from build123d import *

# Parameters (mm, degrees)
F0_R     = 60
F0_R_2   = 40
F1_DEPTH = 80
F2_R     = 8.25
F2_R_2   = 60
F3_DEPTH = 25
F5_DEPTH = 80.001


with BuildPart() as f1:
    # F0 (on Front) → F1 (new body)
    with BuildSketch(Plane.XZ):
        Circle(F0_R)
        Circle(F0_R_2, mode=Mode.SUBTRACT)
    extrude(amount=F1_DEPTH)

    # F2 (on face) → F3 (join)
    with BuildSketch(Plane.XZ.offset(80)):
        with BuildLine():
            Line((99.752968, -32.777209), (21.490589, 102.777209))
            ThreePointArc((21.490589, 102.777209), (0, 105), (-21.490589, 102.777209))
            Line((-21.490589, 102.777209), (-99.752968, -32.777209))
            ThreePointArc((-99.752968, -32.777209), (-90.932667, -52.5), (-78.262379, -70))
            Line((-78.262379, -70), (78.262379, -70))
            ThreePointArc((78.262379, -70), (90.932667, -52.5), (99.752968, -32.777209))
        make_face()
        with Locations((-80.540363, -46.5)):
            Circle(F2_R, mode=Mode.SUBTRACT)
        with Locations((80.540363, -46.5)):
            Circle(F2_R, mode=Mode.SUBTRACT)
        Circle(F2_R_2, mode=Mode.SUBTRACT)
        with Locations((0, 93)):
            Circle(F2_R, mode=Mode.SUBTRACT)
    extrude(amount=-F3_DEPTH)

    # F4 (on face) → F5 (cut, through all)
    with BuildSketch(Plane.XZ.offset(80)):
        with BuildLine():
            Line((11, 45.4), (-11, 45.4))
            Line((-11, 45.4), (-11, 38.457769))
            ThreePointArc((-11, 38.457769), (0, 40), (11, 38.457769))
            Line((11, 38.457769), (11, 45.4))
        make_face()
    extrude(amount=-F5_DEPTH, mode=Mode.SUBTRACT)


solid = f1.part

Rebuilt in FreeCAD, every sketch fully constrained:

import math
import FreeCAD as App
import Part
import Sketcher
Q = App.Units.Quantity

doc = App.newDocument("Part")
body = doc.addObject("PartDesign::Body", "Body")

# Sketch on XZ plane
sketch1 = doc.addObject("Sketcher::SketchObject", "Sketch")
body.addObject(sketch1)
sketch1.AttachmentSupport = (doc.XZ_Plane, [""])
sketch1.MapMode = "FlatFace"
sketch1.addGeometry([
    Part.Circle(App.Vector(0, 0, 0), App.Vector(0, 0, 1), 60),
    Part.Circle(App.Vector(0, 0, 0), App.Vector(0, 0, 1), 40),
], False)
sketch1.addConstraint([
    Sketcher.Constraint("Coincident", 0, 3, -1, 1),
    Sketcher.Constraint("Coincident", 1, 3, -1, 1),
    Sketcher.Constraint("Diameter", 0, Q("120 mm")),
    Sketcher.Constraint("Diameter", 1, Q("80 mm")),
])
pad1 = doc.addObject("PartDesign::Pad", "Pad")
body.addObject(pad1)
pad1.Profile = sketch1
pad1.Length = 80

# Sketch on XZ plane
sketch2 = doc.addObject("Sketcher::SketchObject", "Sketch001")
body.addObject(sketch2)
sketch2.AttachmentSupport = (doc.XZ_Plane, [""])
sketch2.MapMode = "FlatFace"
sketch2.AttachmentOffset = App.Placement(App.Vector(0, 0, 80), App.Rotation())
sketch2.addGeometry([
    Part.LineSegment(App.Vector(99.752968, -32.777209, 0), App.Vector(21.490589, 102.777209, 0)),  # 0
    Part.ArcOfCircle(Part.Circle(App.Vector(0, -0.000024, 0), App.Vector(0, 0, 1), 105.000024), math.radians(78.189688), math.radians(101.810312)),  # 1
    Part.LineSegment(App.Vector(-21.490589, 102.777209, 0), App.Vector(-99.752968, -32.777209, 0)),  # 2
    Part.ArcOfCircle(Part.Circle(App.Vector(0.000016, 0.00001, 0), App.Vector(0, 0, 1), 105.000018), math.radians(-161.810312), math.radians(-138.189687)),  # 3
    Part.LineSegment(App.Vector(-78.262379, -70, 0), App.Vector(78.262379, -70, 0)),  # 4
    Part.ArcOfCircle(Part.Circle(App.Vector(-0.000016, 0.00001, 0), App.Vector(0, 0, 1), 105.000018), math.radians(-41.810313), math.radians(-18.189688)),  # 5
    Part.Circle(App.Vector(-80.540363, -46.5, 0), App.Vector(0, 0, 1), 8.25),  # 6
    Part.Circle(App.Vector(0, 0, 0), App.Vector(0, 0, 1), 60),  # 7
    Part.Circle(App.Vector(80.540363, -46.5, 0), App.Vector(0, 0, 1), 8.25),  # 8
    Part.Circle(App.Vector(0, 93, 0), App.Vector(0, 0, 1), 8.25),  # 9
], False)
sketch2.addConstraint([
    Sketcher.Constraint("Coincident", 0, 2, 1, 1),
    Sketcher.Constraint("Coincident", 1, 2, 2, 1),
    Sketcher.Constraint("Coincident", 2, 2, 3, 1),
    Sketcher.Constraint("Coincident", 3, 2, 4, 1),
    Sketcher.Constraint("Coincident", 4, 2, 5, 1),
    Sketcher.Constraint("Coincident", 5, 2, 0, 1),
    Sketcher.Constraint("Horizontal", 4),
    Sketcher.Constraint("Coincident", 7, 3, -1, 1),
    Sketcher.Constraint("Equal", 3, 5),
    Sketcher.Constraint("Equal", 6, 8),
    Sketcher.Constraint("Equal", 8, 9),
    Sketcher.Constraint("Symmetric", 3, 3, 5, 3, -2),
    Sketcher.Constraint("Symmetric", 6, 3, 8, 3, -2),
    Sketcher.Constraint("Symmetric", 0, 2, 1, 2, -2),
    Sketcher.Constraint("PointOnObject", 9, 3, -2),
    Sketcher.Constraint("Horizontal", 2, 2, 5, 2),
    Sketcher.Constraint("Diameter", 7, Q("120 mm")),
    Sketcher.Constraint("Diameter", 6, Q("16.5 mm")),
    Sketcher.Constraint("Angle", 0, Q("120 deg")),
    Sketcher.Constraint("DistanceY", -1, 1, 9, 3, Q("93 mm")),
    Sketcher.Constraint("DistanceY", 3, 2, -1, 1, Q("70 mm")),
    Sketcher.Constraint("DistanceY", 6, 3, -1, 1, Q("46.5 mm")),
    Sketcher.Constraint("Radius", 3, Q("105.000018 mm")),
    Sketcher.Constraint("Radius", 1, Q("105.000024 mm")),
    Sketcher.Constraint("DistanceX", 4, 1, 4, 2, Q("156.524758 mm")),
    Sketcher.Constraint("DistanceY", 3, 3, 0, 2, Q("102.777199 mm")),
    Sketcher.Constraint("Distance", 0, Q("156.524759 mm")),
    Sketcher.Constraint("DistanceX", -1, 1, 0, 2, Q("21.490589 mm")),
    Sketcher.Constraint("DistanceX", 6, 3, 3, 3, Q("80.540379 mm")),
])
pad2 = doc.addObject("PartDesign::Pad", "Pad001")
body.addObject(pad2)
pad2.Profile = sketch2
pad2.Length = 25
pad2.Reversed = True

# Sketch on XZ plane
sketch3 = doc.addObject("Sketcher::SketchObject", "Sketch002")
body.addObject(sketch3)
sketch3.AttachmentSupport = (doc.XZ_Plane, [""])
sketch3.MapMode = "FlatFace"
sketch3.AttachmentOffset = App.Placement(App.Vector(0, 0, 80), App.Rotation())
sketch3.addGeometry([
    Part.LineSegment(App.Vector(11, 45, 0), App.Vector(-11, 45, 0)),
    Part.LineSegment(App.Vector(-11, 45, 0), App.Vector(-11, 38, 0)),
    Part.ArcOfCircle(Part.Circle(App.Vector(0, 0, 0), App.Vector(0, 0, 1), 40), math.radians(74), math.radians(106)),
    Part.LineSegment(App.Vector(11, 38, 0), App.Vector(11, 45, 0)),
], False)
sketch3.addConstraint([
    Sketcher.Constraint("Coincident", 0, 2, 1, 1),
    Sketcher.Constraint("Coincident", 1, 2, 2, 2),
    Sketcher.Constraint("Coincident", 2, 1, 3, 1),
    Sketcher.Constraint("Coincident", 3, 2, 0, 1),
    Sketcher.Constraint("Horizontal", 0),
    Sketcher.Constraint("Vertical", 1),
    Sketcher.Constraint("Vertical", 3),
    Sketcher.Constraint("Coincident", 2, 3, -1, 1),
    Sketcher.Constraint("Horizontal", 1, 2, 2, 1),
    Sketcher.Constraint("Radius", 2, Q("39.999999 mm")),
    Sketcher.Constraint("DistanceX", 0, 2, 0, 1, Q("22 mm")),
    Sketcher.Constraint("DistanceY", -1, 1, 0, 2, Q("45.4 mm")),
])
pocket1 = doc.addObject("PartDesign::Pocket", "Pocket")
body.addObject(pocket1)
pocket1.Profile = sketch3
pocket1.Type = "ThroughAll"

doc.recompute()
